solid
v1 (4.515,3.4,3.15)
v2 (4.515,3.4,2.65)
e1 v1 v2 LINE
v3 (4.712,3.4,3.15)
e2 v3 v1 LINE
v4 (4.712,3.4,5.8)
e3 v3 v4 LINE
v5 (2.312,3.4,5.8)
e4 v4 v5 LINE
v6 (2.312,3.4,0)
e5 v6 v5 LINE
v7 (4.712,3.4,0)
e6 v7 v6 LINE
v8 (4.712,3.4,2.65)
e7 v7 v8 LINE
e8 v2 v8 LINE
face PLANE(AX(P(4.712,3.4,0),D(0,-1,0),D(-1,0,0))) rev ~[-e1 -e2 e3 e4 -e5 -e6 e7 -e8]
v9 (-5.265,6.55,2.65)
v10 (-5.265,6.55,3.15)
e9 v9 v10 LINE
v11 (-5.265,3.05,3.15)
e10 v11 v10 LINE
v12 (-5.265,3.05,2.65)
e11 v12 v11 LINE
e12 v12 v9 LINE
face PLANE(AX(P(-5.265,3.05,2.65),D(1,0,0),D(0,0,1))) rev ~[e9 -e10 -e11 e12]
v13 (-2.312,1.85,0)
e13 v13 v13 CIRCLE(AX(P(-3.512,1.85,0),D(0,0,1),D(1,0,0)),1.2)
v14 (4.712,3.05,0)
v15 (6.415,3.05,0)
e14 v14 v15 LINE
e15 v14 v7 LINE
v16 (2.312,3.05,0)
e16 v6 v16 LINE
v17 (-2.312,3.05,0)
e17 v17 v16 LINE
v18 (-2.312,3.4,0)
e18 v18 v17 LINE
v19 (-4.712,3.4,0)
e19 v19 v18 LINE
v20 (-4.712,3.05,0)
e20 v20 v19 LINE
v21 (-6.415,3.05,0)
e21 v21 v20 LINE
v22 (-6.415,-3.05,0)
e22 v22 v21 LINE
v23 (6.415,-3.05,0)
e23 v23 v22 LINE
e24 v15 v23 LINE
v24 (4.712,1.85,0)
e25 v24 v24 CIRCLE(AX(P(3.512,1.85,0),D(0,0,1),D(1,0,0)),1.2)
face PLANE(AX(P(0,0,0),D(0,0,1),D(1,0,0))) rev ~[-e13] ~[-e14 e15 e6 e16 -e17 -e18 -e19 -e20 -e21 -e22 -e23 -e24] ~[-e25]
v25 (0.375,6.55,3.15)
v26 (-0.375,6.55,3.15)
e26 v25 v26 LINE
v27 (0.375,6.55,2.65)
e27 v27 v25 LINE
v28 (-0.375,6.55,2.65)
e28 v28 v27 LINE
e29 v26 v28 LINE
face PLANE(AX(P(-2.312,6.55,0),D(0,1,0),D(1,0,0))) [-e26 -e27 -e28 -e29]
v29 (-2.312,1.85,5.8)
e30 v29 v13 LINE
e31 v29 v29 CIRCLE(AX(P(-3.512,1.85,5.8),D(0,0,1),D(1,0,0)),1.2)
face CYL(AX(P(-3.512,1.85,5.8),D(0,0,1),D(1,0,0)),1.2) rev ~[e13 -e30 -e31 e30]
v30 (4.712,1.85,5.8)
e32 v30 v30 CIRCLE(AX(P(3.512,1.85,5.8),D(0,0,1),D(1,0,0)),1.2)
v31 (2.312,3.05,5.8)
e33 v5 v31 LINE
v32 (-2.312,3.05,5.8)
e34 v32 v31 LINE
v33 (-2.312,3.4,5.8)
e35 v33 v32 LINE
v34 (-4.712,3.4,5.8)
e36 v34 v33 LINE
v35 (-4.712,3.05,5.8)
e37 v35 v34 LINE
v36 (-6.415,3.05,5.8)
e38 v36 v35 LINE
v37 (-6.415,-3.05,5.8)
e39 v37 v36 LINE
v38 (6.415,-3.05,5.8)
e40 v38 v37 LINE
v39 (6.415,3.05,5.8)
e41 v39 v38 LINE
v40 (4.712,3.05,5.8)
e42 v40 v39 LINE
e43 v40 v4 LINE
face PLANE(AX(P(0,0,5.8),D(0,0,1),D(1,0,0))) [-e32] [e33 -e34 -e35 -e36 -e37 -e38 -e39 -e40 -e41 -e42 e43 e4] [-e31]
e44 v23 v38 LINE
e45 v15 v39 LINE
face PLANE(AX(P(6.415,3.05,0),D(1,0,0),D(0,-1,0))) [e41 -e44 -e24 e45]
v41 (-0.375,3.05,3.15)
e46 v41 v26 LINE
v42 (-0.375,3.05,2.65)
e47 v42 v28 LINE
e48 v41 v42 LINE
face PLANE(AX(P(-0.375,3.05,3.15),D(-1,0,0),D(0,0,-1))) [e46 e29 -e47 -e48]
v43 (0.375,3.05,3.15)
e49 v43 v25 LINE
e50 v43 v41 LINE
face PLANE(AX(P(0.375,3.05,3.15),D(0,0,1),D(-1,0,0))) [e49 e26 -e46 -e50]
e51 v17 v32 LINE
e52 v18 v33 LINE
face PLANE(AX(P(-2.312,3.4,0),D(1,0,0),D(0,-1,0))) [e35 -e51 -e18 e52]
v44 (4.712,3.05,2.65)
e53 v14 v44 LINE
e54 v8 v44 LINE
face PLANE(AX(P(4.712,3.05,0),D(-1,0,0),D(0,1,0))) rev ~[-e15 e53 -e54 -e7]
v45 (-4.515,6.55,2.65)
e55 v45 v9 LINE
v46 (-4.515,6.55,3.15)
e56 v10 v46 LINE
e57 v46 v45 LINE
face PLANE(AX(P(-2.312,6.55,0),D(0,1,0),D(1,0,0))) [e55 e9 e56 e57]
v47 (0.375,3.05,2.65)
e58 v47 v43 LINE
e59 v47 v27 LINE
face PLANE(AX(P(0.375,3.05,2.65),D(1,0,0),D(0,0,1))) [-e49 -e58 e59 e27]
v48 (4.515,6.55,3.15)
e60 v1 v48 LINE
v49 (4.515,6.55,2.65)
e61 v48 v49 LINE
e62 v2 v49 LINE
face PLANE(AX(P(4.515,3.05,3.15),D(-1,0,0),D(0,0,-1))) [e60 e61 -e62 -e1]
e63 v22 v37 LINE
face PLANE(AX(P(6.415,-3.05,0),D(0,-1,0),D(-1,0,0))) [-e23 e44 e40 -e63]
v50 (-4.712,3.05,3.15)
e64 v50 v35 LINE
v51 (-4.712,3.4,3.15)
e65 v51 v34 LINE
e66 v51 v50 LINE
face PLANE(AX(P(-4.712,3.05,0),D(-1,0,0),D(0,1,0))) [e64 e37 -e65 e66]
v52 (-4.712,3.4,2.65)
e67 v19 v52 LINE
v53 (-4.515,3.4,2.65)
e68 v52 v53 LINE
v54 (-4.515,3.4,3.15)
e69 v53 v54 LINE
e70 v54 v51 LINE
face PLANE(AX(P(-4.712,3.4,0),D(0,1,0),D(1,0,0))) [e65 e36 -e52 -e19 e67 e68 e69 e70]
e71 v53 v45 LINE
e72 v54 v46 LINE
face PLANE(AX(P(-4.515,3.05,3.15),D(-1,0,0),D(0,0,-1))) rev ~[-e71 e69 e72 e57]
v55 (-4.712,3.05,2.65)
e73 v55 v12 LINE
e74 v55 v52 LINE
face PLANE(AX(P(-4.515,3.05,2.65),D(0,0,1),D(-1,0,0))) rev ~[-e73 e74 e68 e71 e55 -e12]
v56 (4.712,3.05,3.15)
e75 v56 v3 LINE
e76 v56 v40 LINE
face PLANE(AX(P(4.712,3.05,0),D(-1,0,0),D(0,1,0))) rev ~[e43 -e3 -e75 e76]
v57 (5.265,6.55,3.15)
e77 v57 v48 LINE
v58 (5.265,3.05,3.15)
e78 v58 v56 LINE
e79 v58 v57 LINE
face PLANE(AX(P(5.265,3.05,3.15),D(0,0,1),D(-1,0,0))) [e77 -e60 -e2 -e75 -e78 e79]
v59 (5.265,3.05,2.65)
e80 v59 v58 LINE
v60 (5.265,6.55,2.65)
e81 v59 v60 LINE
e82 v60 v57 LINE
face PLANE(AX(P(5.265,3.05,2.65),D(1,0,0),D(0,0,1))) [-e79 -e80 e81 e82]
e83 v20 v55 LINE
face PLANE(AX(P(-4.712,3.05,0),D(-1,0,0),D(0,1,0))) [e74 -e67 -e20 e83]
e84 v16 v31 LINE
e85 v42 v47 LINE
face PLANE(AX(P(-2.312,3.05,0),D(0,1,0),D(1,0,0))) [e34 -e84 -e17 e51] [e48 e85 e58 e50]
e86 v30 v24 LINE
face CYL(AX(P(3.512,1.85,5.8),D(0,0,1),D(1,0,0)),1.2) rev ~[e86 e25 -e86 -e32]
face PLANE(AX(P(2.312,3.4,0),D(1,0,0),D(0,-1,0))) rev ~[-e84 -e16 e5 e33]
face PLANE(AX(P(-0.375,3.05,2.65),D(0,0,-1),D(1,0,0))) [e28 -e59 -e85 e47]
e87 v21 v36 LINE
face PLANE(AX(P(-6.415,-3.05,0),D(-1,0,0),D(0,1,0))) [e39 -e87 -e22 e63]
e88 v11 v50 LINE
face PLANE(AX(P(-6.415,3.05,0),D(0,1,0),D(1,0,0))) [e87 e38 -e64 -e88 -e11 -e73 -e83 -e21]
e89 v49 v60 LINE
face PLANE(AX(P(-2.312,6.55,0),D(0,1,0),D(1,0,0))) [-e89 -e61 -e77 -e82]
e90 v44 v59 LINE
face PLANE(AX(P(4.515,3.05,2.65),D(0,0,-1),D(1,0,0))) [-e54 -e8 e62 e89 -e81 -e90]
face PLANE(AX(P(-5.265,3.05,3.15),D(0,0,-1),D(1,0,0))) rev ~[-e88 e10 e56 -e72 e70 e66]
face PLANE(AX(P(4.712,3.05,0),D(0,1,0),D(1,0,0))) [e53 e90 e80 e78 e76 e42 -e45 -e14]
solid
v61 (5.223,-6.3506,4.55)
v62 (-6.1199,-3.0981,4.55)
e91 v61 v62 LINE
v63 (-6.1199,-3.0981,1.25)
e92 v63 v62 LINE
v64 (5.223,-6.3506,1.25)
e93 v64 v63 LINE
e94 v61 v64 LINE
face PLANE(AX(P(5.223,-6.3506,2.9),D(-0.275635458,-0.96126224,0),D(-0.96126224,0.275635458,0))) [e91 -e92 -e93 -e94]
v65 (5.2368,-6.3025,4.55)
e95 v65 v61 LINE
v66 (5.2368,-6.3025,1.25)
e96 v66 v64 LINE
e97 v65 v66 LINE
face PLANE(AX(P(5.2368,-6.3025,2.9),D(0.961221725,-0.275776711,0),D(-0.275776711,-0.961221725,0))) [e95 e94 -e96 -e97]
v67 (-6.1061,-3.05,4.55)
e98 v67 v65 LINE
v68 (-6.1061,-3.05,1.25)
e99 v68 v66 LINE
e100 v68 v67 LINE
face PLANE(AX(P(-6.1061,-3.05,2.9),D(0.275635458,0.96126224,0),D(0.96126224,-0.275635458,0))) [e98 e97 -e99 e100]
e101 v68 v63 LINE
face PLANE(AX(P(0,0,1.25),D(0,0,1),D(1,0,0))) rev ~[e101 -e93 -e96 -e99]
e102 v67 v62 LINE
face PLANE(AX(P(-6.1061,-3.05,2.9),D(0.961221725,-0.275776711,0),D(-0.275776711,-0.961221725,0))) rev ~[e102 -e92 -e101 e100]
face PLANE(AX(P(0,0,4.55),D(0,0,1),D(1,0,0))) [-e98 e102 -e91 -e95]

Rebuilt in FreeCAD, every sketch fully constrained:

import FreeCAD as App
import Part
import Sketcher
from FreeCAD import Vector
Q = App.Units.Quantity


def add_polygon(sketch, points):
    """Adds a closed chain of lines whose ends are joined by coincident constraints."""
    first, n = sketch.GeometryCount, len(points)
    for a, b in zip(points, points[1:] + points[:1]):
        sketch.addGeometry(Part.LineSegment(App.Vector(*a, 0), App.Vector(*b, 0)), False)
    for i in range(n):
        sketch.addConstraint(Sketcher.Constraint("Coincident", first + i, 2, first + (i + 1) % n, 1))

doc = App.newDocument("Part")
params = doc.addObject("Spreadsheet::Sheet", "Params")
for row, (alias, value) in enumerate([
    ("sketch1_width", "2.4 mm"),
    ("sketch1_height", "6.1 mm"),
    ("sketch1_width2", "12.83 mm"),
    ("sketch1_height2", "0.35 mm"),
    ("pad1_length", "5.8 mm"),
    ("sketch2_diameter", "2.4 mm"),
    ("sketch3_height", "0.5 mm"),
    ("sketch3_width", "0.75 mm"),
    ("pad2_length", "3.5 mm"),
    ("sketch4_length", "11.8 mm"),
    ("sketch4_length2", "0.05 mm"),
    ("pad3_length", "3.3 mm"),
], start=1):
    params.set(f"A{row}", alias)
    params.set(f"B{row}", "=" + value)
    params.setAlias(f"B{row}", alias)

body = doc.addObject("PartDesign::Body", "Body")
body.AllowCompound = True

# Sketch on XY plane
sketch1 = body.newObject("Sketcher::SketchObject", "Sketch")
sketch1.AttachmentSupport = (doc.getObject("XY_Plane"), [""])
sketch1.MapMode = "FlatFace"
add_polygon(sketch1, [(6.415, -3.05), (6.415, 3.05), (4.712, 3.05), (4.712, 3.4), (2.312, 3.4), (2.312, 3.05), (-2.312, 3.05), (-2.312, 3.4), (-4.712, 3.4), (-4.712, 3.05), (-6.415, 3.05), (-6.415, -3.05)])  # lines 0-11
sketch1.addConstraint(Sketcher.Constraint("Vertical", 0))
sketch1.addConstraint(Sketcher.Constraint("Horizontal", 1))
sketch1.addConstraint(Sketcher.Constraint("Vertical", 2))
sketch1.addConstraint(Sketcher.Constraint("Horizontal", 3))
sketch1.addConstraint(Sketcher.Constraint("Vertical", 4))
sketch1.addConstraint(Sketcher.Constraint("Horizontal", 5))
sketch1.addConstraint(Sketcher.Constraint("Vertical", 6))
sketch1.addConstraint(Sketcher.Constraint("Horizontal", 7))
sketch1.addConstraint(Sketcher.Constraint("Vertical", 8))
sketch1.addConstraint(Sketcher.Constraint("Horizontal", 9))
sketch1.addConstraint(Sketcher.Constraint("Vertical", 10))
sketch1.addConstraint(Sketcher.Constraint("Horizontal", 11))
sketch1.addConstraint(Sketcher.Constraint("Symmetric", 0, 2, 10, 2, -1, 1))
sketch1.addConstraint(Sketcher.Constraint("Symmetric", 3, 2, 6, 2, -2))
sketch1.addConstraint(Sketcher.Constraint("Symmetric", 1, 2, 8, 2, -2))
sketch1.addConstraint(Sketcher.Constraint("Horizontal", 1, 2, 4, 2))
sketch1.addConstraint(Sketcher.Constraint("DistanceX", 3, 2, 3, 1, Q("2.4 mm")))
sketch1.addConstraint(Sketcher.Constraint("DistanceY", 0, 1, 0, 2, Q("6.1 mm")))
sketch1.addConstraint(Sketcher.Constraint("DistanceX", 11, 1, 11, 2, Q("12.83 mm")))
sketch1.addConstraint(Sketcher.Constraint("DistanceY", 2, 1, 2, 2, Q("0.35 mm")))
sketch1.addConstraint(Sketcher.Constraint("DistanceX", 1, 2, 1, 1, Q("1.703 mm")))
sketch1.setExpression("Constraints[28]", "Params.sketch1_width")
sketch1.setExpression("Constraints[29]", "Params.sketch1_height")
sketch1.setExpression("Constraints[30]", "Params.sketch1_width2")
sketch1.setExpression("Constraints[31]", "Params.sketch1_height2")
pad1 = body.newObject("PartDesign::Pad", "Pad")
pad1.Profile = sketch1
pad1.setExpression("Length", "Params.pad1_length")

# Sketch on XY plane
sketch2 = body.newObject("Sketcher::SketchObject", "Sketch001")
sketch2.AttachmentSupport = (doc.getObject("XY_Plane"), [""])
sketch2.MapMode = "FlatFace"
sketch2.AttachmentOffset = App.Placement(Vector(0, 0, 5.8), App.Rotation())
sketch2.addGeometry(Part.Circle(Vector(-3.512, 1.85, 0), Vector(0, 0, 1), 1.2), False)
sketch2.addGeometry(Part.Circle(Vector(3.512, 1.85, 0), Vector(0, 0, 1), 1.2), False)
sketch2.addConstraint(Sketcher.Constraint("Equal", 0, 1))
sketch2.addConstraint(Sketcher.Constraint("Symmetric", 0, 3, 1, 3, -2))
sketch2.addConstraint(Sketcher.Constraint("Diameter", 0, Q("2.4 mm")))
sketch2.addConstraint(Sketcher.Constraint("DistanceY", -1, 1, 0, 3, Q("1.85 mm")))
sketch2.addConstraint(Sketcher.Constraint("DistanceX", 0, 3, -1, 1, Q("3.512 mm")))
sketch2.setExpression("Constraints[2]", "Params.sketch2_diameter")
pocket1 = body.newObject("PartDesign::Pocket", "Pocket")
pocket1.Profile = sketch2
pocket1.Type = "ThroughAll"

# Sketch on XZ plane
sketch3 = body.newObject("Sketcher::SketchObject", "Sketch002")
sketch3.AttachmentSupport = (doc.getObject("XZ_Plane"), [""])
sketch3.MapMode = "FlatFace"
sketch3.AttachmentOffset = App.Placement(Vector(0, 0, -3.05), App.Rotation())
add_polygon(sketch3, [(5.265, 2.65), (4.515, 2.65), (4.515, 3.15), (5.265, 3.15)])  # lines 0-3
add_polygon(sketch3, [(-4.515, 3.15), (-4.515, 2.65), (-5.265, 2.65), (-5.265, 3.15)])  # lines 4-7
add_polygon(sketch3, [(0.375, 2.65), (-0.375, 2.65), (-0.375, 3.15), (0.375, 3.15)])  # lines 8-11
sketch3.addConstraint(Sketcher.Constraint("Horizontal", 0))
sketch3.addConstraint(Sketcher.Constraint("Vertical", 1))
sketch3.addConstraint(Sketcher.Constraint("Horizontal", 2))
sketch3.addConstraint(Sketcher.Constraint("Vertical", 3))
sketch3.addConstraint(Sketcher.Constraint("Vertical", 4))
sketch3.addConstraint(Sketcher.Constraint("Horizontal", 5))
sketch3.addConstraint(Sketcher.Constraint("Vertical", 6))
sketch3.addConstraint(Sketcher.Constraint("Horizontal", 7))
sketch3.addConstraint(Sketcher.Constraint("Horizontal", 8))
sketch3.addConstraint(Sketcher.Constraint("Vertical", 9))
sketch3.addConstraint(Sketcher.Constraint("Horizontal", 10))
sketch3.addConstraint(Sketcher.Constraint("Vertical", 11))
sketch3.addConstraint(Sketcher.Constraint("Symmetric", 0, 2, 4, 2, -2))
sketch3.addConstraint(Sketcher.Constraint("Symmetric", 2, 2, 6, 2, -2))
sketch3.addConstraint(Sketcher.Constraint("Horizontal", 5, 2, 8, 2))
sketch3.addConstraint(Sketcher.Constraint("Horizontal", 7, 2, 9, 2))
sketch3.addConstraint(Sketcher.Constraint("Equal", 7, 8))
sketch3.addConstraint(Sketcher.Constraint("DistanceY", 1, 1, 1, 2, Q("0.5 mm")))
sketch3.addConstraint(Sketcher.Constraint("DistanceX", 0, 2, 0, 1, Q("0.75 mm")))
sketch3.addConstraint(Sketcher.Constraint("DistanceY", -1, 1, 0, 2, Q("2.65 mm")))
sketch3.addConstraint(Sketcher.Constraint("DistanceX", 4, 2, 0, 2, Q("9.03 mm")))
sketch3.addConstraint(Sketcher.Constraint("DistanceX", 4, 2, 8, 2, Q("4.14 mm")))
sketch3.setExpression("Constraints[29]", "Params.sketch3_height")
sketch3.setExpression("Constraints[30]", "Params.sketch3_width")
pad2 = body.newObject("PartDesign::Pad", "Pad001")
pad2.Profile = sketch3
pad2.setExpression("Length", "Params.pad2_length")
pad2.Reversed = True

# Sketch on XY plane
sketch4 = body.newObject("Sketcher::SketchObject", "Sketch003")
sketch4.AttachmentSupport = (doc.getObject("XY_Plane"), [""])
sketch4.MapMode = "FlatFace"
sketch4.AttachmentOffset = App.Placement(Vector(0, 0, 2.9), App.Rotation())
add_polygon(sketch4, [(5.2368, -6.3025), (-6.1061, -3.05), (-6.1199, -3.0981), (5.223, -6.3506)])  # lines 0-3
sketch4.addConstraint(Sketcher.Constraint("Perpendicular", 0, 1))
sketch4.addConstraint(Sketcher.Constraint("Perpendicular", 1, 2))
sketch4.addConstraint(Sketcher.Constraint("Perpendicular", 2, 3))
sketch4.addConstraint(Sketcher.Constraint("Angle", 2, Q("-16 deg")))
sketch4.addConstraint(Sketcher.Constraint("Distance", 0, Q("11.8 mm")))
sketch4.addConstraint(Sketcher.Constraint("Distance", 1, Q("0.05 mm")))
sketch4.addConstraint(Sketcher.Constraint("DistanceY", 0, 2, -1, 1, Q("3.05 mm")))
sketch4.addConstraint(Sketcher.Constraint("DistanceX", 1, 2, -1, 1, Q("6.12 mm")))
sketch4.setExpression("Constraints[8]", "Params.sketch4_length")
sketch4.setExpression("Constraints[9]", "Params.sketch4_length2")
pad3 = body.newObject("PartDesign::Pad", "Pad002")
pad3.Profile = sketch4
pad3.setExpression("Length", "Params.pad3_length")
pad3.Midplane = True

doc.recompute()
